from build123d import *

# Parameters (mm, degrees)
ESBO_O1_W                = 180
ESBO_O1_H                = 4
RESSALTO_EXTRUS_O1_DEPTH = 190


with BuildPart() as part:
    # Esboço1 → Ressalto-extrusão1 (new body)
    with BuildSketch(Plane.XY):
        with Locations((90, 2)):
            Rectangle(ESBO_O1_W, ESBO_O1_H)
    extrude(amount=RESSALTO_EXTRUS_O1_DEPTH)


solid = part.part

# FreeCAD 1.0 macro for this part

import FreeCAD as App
import Part
import Sketcher
from FreeCAD import Vector


def add_polygon(sketch, points):
    """Adds a closed chain of lines whose ends are joined by coincident constraints."""
    first, n = sketch.GeometryCount, len(points)
    for a, b in zip(points, points[1:] + points[:1]):
        sketch.addGeometry(Part.LineSegment(App.Vector(*a, 0), App.Vector(*b, 0)), False)
    for i in range(n):
        sketch.addConstraint(Sketcher.Constraint("Coincident", first + i, 2, first + (i + 1) % n, 1))

doc = App.newDocument("Part")
body = doc.addObject("PartDesign::Body", "Body")

# Sketch on XY plane
sketch1 = body.newObject("Sketcher::SketchObject", "Sketch")
sketch1.AttachmentSupport = (doc.getObject("XY_Plane"), [""])
sketch1.MapMode = "FlatFace"
add_polygon(sketch1, [(0, 4), (0, 0), (180, 0), (180, 4)])  # lines 0-3
sketch1.addConstraint(Sketcher.Constraint("Vertical", 0))
sketch1.addConstraint(Sketcher.Constraint("Horizontal", 1))
sketch1.addConstraint(Sketcher.Constraint("Vertical", 2))
sketch1.addConstraint(Sketcher.Constraint("Horizontal", 3))
sketch1.addConstraint(Sketcher.Constraint("Coincident", 0, 2, -1, 1))
sketch1.addConstraint(Sketcher.Constraint("DistanceX", 1, 1, 1, 2, 180.0))
sketch1.addConstraint(Sketcher.Constraint("DistanceY", 0, 2, 0, 1, 4.0))
pad1 = body.newObject("PartDesign::Pad", "Pad")
pad1.Profile = sketch1
pad1.Length = 190

doc.recompute()
